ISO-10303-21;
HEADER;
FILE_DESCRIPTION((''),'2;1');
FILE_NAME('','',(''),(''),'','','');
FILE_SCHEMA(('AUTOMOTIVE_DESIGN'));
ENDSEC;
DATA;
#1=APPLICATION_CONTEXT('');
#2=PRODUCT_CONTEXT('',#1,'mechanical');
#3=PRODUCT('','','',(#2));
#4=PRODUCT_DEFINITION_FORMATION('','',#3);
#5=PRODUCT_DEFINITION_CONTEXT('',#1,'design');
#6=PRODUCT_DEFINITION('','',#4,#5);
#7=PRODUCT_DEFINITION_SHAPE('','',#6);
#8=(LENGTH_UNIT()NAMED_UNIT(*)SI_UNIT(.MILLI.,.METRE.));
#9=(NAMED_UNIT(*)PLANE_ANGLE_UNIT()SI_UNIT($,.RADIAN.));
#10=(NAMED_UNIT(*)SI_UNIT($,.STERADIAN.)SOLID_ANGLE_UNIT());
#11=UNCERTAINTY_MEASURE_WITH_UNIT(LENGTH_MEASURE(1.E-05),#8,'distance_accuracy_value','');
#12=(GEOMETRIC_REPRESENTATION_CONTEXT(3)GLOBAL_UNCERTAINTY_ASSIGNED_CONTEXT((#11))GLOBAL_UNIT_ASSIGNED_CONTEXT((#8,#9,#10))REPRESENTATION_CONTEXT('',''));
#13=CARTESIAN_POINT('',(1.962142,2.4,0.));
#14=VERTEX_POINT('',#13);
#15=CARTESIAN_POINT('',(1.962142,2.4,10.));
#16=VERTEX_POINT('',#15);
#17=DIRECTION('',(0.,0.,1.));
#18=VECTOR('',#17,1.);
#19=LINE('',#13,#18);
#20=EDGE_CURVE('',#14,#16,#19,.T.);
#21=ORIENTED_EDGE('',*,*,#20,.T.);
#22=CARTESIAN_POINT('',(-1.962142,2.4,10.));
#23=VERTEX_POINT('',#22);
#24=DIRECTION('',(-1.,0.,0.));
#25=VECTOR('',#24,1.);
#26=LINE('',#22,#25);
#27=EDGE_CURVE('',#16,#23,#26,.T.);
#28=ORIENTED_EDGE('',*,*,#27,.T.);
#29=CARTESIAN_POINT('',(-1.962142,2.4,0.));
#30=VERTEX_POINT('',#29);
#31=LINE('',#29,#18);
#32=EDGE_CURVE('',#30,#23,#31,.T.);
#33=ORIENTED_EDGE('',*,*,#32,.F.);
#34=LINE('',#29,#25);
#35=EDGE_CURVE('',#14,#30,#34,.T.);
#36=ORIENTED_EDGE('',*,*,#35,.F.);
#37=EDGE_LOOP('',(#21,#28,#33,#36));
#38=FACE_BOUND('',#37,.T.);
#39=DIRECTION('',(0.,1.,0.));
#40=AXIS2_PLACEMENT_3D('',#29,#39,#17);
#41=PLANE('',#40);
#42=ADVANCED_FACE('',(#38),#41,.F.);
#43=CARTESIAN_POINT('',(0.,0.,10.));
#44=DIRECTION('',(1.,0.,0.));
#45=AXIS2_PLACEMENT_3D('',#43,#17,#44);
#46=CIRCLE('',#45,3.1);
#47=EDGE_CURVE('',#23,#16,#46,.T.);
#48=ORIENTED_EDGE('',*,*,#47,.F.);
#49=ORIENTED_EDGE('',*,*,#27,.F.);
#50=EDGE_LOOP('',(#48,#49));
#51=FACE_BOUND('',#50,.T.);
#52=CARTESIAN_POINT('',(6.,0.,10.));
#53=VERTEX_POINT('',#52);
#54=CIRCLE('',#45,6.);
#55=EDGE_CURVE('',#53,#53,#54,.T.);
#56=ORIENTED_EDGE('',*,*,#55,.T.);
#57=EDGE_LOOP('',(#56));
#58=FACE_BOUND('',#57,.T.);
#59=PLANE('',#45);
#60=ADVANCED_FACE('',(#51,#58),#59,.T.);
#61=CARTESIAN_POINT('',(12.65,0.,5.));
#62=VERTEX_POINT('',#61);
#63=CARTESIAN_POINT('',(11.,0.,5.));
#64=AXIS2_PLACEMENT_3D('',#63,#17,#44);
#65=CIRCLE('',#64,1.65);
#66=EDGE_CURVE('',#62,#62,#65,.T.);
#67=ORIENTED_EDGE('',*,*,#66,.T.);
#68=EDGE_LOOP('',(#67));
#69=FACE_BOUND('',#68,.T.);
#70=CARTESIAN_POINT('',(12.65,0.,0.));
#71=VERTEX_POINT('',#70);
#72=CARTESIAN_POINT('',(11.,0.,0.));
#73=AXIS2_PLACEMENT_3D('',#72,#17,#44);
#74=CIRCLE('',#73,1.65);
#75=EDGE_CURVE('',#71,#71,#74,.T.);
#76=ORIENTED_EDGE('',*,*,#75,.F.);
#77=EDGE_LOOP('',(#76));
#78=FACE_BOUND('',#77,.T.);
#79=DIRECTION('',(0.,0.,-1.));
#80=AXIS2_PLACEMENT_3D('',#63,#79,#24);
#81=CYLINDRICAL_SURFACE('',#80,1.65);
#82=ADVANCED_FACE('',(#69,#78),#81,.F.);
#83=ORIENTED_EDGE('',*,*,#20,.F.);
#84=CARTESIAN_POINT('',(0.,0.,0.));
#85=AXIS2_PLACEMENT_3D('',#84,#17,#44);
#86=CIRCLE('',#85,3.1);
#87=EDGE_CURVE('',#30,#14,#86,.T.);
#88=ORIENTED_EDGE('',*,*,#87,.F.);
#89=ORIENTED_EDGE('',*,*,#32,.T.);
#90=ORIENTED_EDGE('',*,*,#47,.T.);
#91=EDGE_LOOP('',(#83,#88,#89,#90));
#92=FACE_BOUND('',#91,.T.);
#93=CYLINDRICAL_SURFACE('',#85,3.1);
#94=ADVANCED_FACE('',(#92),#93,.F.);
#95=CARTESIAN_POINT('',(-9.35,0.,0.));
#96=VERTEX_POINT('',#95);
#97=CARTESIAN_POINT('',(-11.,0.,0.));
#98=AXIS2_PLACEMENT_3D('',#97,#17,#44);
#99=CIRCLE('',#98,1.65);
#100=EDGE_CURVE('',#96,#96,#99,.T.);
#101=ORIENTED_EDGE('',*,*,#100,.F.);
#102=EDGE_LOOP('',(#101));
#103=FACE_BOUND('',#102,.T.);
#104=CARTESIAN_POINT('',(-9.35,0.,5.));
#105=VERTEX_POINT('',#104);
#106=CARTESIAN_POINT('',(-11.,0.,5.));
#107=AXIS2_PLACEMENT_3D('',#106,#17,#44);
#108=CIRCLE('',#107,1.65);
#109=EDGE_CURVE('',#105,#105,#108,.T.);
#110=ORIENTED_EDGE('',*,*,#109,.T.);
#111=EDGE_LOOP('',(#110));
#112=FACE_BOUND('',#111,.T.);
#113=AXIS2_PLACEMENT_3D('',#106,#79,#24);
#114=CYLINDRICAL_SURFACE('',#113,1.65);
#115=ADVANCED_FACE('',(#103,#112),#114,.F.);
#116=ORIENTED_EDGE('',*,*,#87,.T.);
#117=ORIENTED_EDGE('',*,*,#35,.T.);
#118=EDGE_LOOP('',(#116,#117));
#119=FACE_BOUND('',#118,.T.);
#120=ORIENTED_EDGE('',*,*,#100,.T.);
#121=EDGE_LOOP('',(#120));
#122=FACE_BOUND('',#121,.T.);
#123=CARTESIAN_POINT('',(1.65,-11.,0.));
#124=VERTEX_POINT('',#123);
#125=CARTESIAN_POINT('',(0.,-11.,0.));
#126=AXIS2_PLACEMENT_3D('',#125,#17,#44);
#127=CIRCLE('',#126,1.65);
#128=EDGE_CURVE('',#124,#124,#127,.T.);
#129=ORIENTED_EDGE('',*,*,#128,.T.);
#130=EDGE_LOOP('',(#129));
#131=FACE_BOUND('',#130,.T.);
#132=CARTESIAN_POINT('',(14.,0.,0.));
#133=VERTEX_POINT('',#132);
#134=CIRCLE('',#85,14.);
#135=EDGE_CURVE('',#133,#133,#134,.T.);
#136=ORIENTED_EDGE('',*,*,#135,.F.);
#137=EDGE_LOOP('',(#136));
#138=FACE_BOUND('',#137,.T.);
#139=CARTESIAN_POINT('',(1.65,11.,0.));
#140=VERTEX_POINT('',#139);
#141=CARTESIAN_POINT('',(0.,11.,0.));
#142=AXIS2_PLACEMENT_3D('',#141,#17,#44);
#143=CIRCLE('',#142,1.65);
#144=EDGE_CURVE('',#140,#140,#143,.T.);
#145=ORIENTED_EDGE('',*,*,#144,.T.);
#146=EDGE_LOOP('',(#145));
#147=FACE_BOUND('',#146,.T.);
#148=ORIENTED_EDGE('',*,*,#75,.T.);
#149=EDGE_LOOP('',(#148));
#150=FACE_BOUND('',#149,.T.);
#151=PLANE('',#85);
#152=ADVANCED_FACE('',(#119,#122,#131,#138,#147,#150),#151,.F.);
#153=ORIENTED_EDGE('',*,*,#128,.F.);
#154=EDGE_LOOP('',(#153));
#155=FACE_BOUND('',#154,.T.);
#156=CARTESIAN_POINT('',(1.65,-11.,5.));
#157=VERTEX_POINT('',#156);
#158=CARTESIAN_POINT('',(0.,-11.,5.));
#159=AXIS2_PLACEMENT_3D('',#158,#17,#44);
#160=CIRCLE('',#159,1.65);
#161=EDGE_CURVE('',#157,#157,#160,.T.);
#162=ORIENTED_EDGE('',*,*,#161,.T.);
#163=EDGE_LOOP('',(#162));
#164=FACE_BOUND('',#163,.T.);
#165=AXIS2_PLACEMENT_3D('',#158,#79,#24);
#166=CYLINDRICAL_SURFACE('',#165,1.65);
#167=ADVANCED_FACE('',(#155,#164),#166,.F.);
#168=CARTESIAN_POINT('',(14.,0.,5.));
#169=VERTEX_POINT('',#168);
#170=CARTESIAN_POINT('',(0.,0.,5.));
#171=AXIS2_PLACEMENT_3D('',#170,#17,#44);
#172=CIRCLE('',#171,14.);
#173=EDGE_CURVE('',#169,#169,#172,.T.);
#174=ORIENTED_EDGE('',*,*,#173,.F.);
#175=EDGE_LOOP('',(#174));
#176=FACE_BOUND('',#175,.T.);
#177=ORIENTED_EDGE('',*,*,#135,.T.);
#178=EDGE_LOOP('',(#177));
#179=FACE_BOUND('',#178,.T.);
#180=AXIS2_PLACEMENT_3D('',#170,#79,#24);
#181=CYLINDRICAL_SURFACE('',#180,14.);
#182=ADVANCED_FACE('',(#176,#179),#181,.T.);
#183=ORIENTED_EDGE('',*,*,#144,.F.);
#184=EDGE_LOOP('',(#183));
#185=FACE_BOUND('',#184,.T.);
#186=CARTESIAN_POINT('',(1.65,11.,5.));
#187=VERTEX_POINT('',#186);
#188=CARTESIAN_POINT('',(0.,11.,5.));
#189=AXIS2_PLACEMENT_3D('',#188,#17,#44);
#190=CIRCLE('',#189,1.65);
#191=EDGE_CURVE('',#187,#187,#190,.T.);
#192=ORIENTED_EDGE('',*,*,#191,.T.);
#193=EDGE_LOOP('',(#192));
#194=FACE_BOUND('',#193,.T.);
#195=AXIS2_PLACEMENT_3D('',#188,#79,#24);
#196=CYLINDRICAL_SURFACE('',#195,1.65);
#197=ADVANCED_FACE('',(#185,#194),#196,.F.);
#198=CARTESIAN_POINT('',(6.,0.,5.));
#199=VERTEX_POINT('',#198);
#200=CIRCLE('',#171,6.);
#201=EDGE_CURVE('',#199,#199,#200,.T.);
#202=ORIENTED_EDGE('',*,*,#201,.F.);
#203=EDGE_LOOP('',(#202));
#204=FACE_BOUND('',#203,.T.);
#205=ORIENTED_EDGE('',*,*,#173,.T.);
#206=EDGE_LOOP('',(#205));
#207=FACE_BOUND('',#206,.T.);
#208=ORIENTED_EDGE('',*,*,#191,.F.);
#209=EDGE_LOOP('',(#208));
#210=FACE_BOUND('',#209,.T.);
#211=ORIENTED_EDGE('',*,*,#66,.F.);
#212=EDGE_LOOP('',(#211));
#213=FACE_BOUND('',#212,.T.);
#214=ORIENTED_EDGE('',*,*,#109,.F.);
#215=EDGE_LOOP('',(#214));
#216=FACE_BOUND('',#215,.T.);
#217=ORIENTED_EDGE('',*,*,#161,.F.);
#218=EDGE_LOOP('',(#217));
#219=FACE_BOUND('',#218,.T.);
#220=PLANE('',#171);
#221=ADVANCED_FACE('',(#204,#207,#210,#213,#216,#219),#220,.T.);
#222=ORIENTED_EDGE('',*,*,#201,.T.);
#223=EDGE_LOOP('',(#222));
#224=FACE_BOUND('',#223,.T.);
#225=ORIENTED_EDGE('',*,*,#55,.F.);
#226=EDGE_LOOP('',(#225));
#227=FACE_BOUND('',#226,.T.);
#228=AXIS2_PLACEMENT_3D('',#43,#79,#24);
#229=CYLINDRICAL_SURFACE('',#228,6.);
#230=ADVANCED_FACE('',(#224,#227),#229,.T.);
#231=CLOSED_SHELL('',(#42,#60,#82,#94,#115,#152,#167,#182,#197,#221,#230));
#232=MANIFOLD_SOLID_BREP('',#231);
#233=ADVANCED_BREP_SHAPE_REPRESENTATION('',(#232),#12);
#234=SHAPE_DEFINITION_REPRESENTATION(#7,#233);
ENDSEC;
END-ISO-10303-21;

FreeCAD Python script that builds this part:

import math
import FreeCAD as App
import Part
import Sketcher

doc = App.newDocument("Part")
body = doc.addObject("PartDesign::Body", "Body")

sketch1 = doc.addObject("Sketcher::SketchObject", "Sketch")
body.addObject(sketch1)
sketch1.AttachmentSupport = (doc.XY_Plane, [""])
sketch1.MapMode = "FlatFace"
sketch1.addGeometry([
    Part.Circle(App.Vector(0, 0, 0), App.Vector(0, 0, 1), 14),
    Part.Circle(App.Vector(0, -11, 0), App.Vector(0, 0, 1), 1.6),
    Part.Circle(App.Vector(-11, 0, 0), App.Vector(0, 0, 1), 1.6),
    Part.Circle(App.Vector(11, 0, 0), App.Vector(0, 0, 1), 1.6),
    Part.Circle(App.Vector(0, 11, 0), App.Vector(0, 0, 1), 1.6),
], False)
sketch1.addConstraint([
    Sketcher.Constraint("Coincident", 0, 3, -1, 1),
    Sketcher.Constraint("Equal", 1, 2),
    Sketcher.Constraint("Equal", 2, 3),
    Sketcher.Constraint("Equal", 3, 4),
    Sketcher.Constraint("Symmetric", 2, 3, 3, 3, -1, 1),
    Sketcher.Constraint("Symmetric", 1, 3, 4, 3, -1, 1),
    Sketcher.Constraint("PointOnObject", 1, 3, -2),
    Sketcher.Constraint("PointOnObject", 2, 3, -1),
    Sketcher.Constraint("Diameter", 0, 28.0),
    Sketcher.Constraint("Diameter", 1, 3.3),
    Sketcher.Constraint("DistanceY", 1, 3, -1, 1, 11.0),
    Sketcher.Constraint("DistanceX", 2, 3, -1, 1, 11.0),
])
pad1 = doc.addObject("PartDesign::Pad", "Pad")
body.addObject(pad1)
pad1.Profile = sketch1
pad1.Length = 5

sketch2 = doc.addObject("Sketcher::SketchObject", "Sketch001")
body.addObject(sketch2)
sketch2.AttachmentSupport = (doc.XY_Plane, [""])
sketch2.MapMode = "FlatFace"
sketch2.AttachmentOffset = App.Placement(App.Vector(0, 0, 5), App.Rotation())
sketch2.addGeometry(Part.Circle(App.Vector(0, 0, 0), App.Vector(0, 0, 1), 6), False)
sketch2.addConstraint([
    Sketcher.Constraint("Coincident", 0, 3, -1, 1),
    Sketcher.Constraint("Diameter", 0, 12.0),
])
pad2 = doc.addObject("PartDesign::Pad", "Pad001")
body.addObject(pad2)
pad2.Profile = sketch2
pad2.Length = 5

sketch3 = doc.addObject("Sketcher::SketchObject", "Sketch002")
body.addObject(sketch3)
sketch3.AttachmentSupport = (doc.XY_Plane, [""])
sketch3.MapMode = "FlatFace"
sketch3.AttachmentOffset = App.Placement(App.Vector(0, 0, 10), App.Rotation())
sketch3.addGeometry([
    Part.LineSegment(App.Vector(2, 2.4, 0), App.Vector(-2, 2.4, 0)),
    Part.ArcOfCircle(Part.Circle(App.Vector(0, 0, 0), App.Vector(0, 0, 1), 3.1), math.radians(129), math.radians(411)),
], False)
sketch3.addConstraint([
    Sketcher.Constraint("Coincident", 0, 1, 1, 2),
    Sketcher.Constraint("Coincident", 1, 1, 0, 2),
    Sketcher.Constraint("Horizontal", 0),
    Sketcher.Constraint("Coincident", 1, 3, -1, 1),
    Sketcher.Constraint("Radius", 1, 3.1),
    Sketcher.Constraint("DistanceY", -1, 1, 0, 1, 2.4),
])
pocket1 = doc.addObject("PartDesign::Pocket", "Pocket")
body.addObject(pocket1)
pocket1.Profile = sketch3
pocket1.Type = "ThroughAll"

doc.recompute()
